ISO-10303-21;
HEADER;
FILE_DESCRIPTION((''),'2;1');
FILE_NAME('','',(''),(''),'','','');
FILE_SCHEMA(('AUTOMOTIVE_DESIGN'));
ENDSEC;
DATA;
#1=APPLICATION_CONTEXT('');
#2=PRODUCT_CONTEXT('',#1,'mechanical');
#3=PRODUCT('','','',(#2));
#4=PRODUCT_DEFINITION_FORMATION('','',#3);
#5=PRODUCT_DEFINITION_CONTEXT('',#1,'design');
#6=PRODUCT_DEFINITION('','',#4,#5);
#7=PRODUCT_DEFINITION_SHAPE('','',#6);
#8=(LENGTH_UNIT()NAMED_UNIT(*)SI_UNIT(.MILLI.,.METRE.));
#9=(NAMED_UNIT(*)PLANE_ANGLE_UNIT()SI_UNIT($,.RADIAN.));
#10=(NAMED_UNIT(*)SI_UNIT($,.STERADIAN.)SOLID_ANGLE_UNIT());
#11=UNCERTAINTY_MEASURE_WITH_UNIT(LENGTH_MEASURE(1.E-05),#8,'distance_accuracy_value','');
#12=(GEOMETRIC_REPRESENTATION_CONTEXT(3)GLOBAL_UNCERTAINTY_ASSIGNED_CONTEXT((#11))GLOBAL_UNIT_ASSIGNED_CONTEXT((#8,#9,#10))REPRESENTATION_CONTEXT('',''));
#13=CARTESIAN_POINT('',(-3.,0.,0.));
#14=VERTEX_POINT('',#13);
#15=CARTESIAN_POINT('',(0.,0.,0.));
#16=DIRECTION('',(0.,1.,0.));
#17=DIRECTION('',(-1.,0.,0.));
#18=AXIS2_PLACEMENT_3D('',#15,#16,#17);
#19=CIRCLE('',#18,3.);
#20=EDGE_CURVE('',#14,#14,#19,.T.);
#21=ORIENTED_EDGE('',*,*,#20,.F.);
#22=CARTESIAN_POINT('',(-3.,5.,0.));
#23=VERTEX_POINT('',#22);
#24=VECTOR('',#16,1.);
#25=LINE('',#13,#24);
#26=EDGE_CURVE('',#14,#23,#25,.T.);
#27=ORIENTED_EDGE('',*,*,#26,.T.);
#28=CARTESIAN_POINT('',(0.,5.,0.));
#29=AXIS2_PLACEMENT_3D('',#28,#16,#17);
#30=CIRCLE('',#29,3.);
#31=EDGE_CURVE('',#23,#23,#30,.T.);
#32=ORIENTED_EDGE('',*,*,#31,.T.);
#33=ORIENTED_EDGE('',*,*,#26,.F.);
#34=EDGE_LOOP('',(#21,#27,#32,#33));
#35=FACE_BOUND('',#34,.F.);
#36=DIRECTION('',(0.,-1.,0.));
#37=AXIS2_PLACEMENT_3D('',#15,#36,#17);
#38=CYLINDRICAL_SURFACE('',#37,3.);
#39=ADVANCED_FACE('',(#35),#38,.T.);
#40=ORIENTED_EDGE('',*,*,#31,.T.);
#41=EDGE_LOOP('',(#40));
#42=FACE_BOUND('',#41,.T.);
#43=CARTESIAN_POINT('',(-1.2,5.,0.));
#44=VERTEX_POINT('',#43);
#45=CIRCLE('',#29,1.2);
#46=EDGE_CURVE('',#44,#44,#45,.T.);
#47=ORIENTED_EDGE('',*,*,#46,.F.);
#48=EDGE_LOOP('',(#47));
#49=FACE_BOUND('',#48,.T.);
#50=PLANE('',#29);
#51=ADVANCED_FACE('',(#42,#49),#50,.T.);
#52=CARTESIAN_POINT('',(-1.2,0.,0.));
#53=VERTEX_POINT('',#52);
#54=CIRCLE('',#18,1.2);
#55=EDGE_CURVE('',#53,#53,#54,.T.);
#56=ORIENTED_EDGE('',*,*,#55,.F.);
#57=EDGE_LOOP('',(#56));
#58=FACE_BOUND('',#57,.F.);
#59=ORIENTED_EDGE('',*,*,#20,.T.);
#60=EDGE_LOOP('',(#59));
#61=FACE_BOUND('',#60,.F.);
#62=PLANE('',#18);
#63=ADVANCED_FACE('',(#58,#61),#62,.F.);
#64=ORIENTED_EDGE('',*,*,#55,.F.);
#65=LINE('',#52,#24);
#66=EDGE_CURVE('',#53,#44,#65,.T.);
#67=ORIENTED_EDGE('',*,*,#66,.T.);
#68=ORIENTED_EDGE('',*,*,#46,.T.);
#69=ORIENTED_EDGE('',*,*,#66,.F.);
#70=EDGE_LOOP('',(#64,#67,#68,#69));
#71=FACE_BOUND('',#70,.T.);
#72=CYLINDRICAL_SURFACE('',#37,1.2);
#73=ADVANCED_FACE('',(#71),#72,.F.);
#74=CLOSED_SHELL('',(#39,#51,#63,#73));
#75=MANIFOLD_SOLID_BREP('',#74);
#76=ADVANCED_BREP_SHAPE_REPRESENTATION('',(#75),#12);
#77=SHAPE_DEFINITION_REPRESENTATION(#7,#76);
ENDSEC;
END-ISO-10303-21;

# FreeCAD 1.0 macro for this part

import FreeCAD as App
import Part
import Sketcher
from FreeCAD import Vector
Q = App.Units.Quantity

doc = App.newDocument("Part")
body = doc.addObject("PartDesign::Body", "Body")

sketch1 = doc.addObject("Sketcher::SketchObject", "Sketch")
body.addObject(sketch1)
sketch1.AttachmentSupport = (doc.XZ_Plane, [""])
sketch1.MapMode = "FlatFace"
sketch1.addGeometry([
    Part.Circle(Vector(0, 0, 0), Vector(0, 0, 1), 3),
    Part.Circle(Vector(0, 0, 0), Vector(0, 0, 1), 1.2),
], False)
sketch1.addConstraint([
    Sketcher.Constraint("Coincident", 0, 3, -1, 1),
    Sketcher.Constraint("Coincident", 1, 3, -1, 1),
    Sketcher.Constraint("Diameter", 0, Q("6 mm")),
    Sketcher.Constraint("Diameter", 1, Q("2.4 mm")),
])
pad1 = doc.addObject("PartDesign::Pad", "Pad")
body.addObject(pad1)
pad1.Profile = sketch1
pad1.Length = 5
pad1.Reversed = True

doc.recompute()
